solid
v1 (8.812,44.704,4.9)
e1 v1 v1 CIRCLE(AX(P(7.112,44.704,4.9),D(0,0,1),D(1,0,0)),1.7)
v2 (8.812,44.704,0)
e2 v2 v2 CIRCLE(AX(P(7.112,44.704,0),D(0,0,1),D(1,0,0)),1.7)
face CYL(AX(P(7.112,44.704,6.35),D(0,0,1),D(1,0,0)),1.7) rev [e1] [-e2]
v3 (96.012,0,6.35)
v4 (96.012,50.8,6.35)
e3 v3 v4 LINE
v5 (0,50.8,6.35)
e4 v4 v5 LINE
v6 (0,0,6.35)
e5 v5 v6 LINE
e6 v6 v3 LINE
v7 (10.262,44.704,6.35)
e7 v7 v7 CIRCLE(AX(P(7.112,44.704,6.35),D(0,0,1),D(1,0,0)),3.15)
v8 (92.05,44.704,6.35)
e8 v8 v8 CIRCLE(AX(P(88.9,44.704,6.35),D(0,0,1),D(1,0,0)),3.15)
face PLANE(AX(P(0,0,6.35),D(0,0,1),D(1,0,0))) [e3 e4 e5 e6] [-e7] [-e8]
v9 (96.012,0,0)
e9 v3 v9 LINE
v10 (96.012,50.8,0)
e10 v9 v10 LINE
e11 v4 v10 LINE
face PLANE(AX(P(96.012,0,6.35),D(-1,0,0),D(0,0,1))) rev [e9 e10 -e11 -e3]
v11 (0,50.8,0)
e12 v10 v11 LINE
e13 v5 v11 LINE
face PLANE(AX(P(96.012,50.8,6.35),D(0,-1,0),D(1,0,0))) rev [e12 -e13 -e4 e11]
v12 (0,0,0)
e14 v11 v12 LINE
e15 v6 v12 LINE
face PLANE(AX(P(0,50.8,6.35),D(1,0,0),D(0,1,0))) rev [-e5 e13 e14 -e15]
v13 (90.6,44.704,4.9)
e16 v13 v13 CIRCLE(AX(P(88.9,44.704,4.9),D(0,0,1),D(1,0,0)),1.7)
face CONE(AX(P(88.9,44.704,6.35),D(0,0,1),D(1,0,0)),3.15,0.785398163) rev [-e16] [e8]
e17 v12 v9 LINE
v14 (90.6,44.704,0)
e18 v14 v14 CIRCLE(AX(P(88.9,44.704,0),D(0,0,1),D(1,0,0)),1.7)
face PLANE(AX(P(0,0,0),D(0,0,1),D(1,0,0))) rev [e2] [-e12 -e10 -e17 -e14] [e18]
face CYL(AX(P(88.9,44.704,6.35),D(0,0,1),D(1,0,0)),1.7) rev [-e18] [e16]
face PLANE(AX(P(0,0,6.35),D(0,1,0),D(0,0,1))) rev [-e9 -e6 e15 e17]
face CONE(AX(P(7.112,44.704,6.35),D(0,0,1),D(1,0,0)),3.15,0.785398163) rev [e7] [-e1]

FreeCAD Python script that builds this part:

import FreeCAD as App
import Part
import Sketcher
Q = App.Units.Quantity


def add_polygon(sketch, points):
    """Adds a closed chain of lines whose ends are joined by coincident constraints."""
    first, n = sketch.GeometryCount, len(points)
    for a, b in zip(points, points[1:] + points[:1]):
        sketch.addGeometry(Part.LineSegment(App.Vector(*a, 0), App.Vector(*b, 0)), False)
    for i in range(n):
        sketch.addConstraint(Sketcher.Constraint("Coincident", first + i, 2, first + (i + 1) % n, 1))

doc = App.newDocument("Part")
body = doc.addObject("PartDesign::Body", "Body")

# Sketch on XY plane
sketch1 = body.newObject("Sketcher::SketchObject", "Sketch")
sketch1.AttachmentSupport = (doc.getObject("XY_Plane"), [""])
sketch1.MapMode = "FlatFace"
add_polygon(sketch1, [(0, 51), (0, 0), (96, 0), (96, 51)])  # lines 0-3
sketch1.addConstraint([
    Sketcher.Constraint("Vertical", 0),
    Sketcher.Constraint("Horizontal", 1),
    Sketcher.Constraint("Vertical", 2),
    Sketcher.Constraint("Horizontal", 3),
    Sketcher.Constraint("Coincident", 0, 2, -1, 1),
    Sketcher.Constraint("DistanceY", 0, 2, 0, 1, Q("2 in")),
    Sketcher.Constraint("DistanceX", 1, 1, 1, 2, Q("3.78 in")),
])
pad1 = body.newObject("PartDesign::Pad", "Pad")
pad1.Profile = sketch1
pad1.Length = Q("0.25 in")

# Sketch on XY plane
sketch2 = body.newObject("Sketcher::SketchObject", "Sketch001")
sketch2.AttachmentSupport = (doc.getObject("XY_Plane"), [""])
sketch2.MapMode = "FlatFace"
sketch2.AttachmentOffset = App.Placement(App.Vector(0, 0, 0.25 * 25.4), App.Rotation())
sketch2.addGeometry([
    Part.Circle(App.Vector(7.1, 44.7, 0), App.Vector(0, 0, 1), 1.7),
    Part.Circle(App.Vector(88.9, 44.7, 0), App.Vector(0, 0, 1), 1.7),
], False)
sketch2.addConstraint([
    Sketcher.Constraint("Equal", 0, 1),
    Sketcher.Constraint("Horizontal", 0, 3, 1, 3),
    Sketcher.Constraint("DistanceX", -1, 1, 1, 3, Q("3.5 in")),
    Sketcher.Constraint("Diameter", 0, Q("3.4 mm")),
    Sketcher.Constraint("DistanceX", -1, 1, 0, 3, Q("0.28 in")),
    Sketcher.Constraint("DistanceY", -1, 1, 0, 3, Q("1.76 in")),
])
doc.recompute()
hole = body.newObject("PartDesign::Hole", "Hole")
hole.Profile = sketch2
hole.ThreadType = "None"
hole.Diameter = 3.4
hole.DepthType = "ThroughAll"
hole.HoleCutType = "Countersink"
hole.HoleCutDiameter = 6.3
hole.HoleCutCountersinkAngle = 90

doc.recompute()
